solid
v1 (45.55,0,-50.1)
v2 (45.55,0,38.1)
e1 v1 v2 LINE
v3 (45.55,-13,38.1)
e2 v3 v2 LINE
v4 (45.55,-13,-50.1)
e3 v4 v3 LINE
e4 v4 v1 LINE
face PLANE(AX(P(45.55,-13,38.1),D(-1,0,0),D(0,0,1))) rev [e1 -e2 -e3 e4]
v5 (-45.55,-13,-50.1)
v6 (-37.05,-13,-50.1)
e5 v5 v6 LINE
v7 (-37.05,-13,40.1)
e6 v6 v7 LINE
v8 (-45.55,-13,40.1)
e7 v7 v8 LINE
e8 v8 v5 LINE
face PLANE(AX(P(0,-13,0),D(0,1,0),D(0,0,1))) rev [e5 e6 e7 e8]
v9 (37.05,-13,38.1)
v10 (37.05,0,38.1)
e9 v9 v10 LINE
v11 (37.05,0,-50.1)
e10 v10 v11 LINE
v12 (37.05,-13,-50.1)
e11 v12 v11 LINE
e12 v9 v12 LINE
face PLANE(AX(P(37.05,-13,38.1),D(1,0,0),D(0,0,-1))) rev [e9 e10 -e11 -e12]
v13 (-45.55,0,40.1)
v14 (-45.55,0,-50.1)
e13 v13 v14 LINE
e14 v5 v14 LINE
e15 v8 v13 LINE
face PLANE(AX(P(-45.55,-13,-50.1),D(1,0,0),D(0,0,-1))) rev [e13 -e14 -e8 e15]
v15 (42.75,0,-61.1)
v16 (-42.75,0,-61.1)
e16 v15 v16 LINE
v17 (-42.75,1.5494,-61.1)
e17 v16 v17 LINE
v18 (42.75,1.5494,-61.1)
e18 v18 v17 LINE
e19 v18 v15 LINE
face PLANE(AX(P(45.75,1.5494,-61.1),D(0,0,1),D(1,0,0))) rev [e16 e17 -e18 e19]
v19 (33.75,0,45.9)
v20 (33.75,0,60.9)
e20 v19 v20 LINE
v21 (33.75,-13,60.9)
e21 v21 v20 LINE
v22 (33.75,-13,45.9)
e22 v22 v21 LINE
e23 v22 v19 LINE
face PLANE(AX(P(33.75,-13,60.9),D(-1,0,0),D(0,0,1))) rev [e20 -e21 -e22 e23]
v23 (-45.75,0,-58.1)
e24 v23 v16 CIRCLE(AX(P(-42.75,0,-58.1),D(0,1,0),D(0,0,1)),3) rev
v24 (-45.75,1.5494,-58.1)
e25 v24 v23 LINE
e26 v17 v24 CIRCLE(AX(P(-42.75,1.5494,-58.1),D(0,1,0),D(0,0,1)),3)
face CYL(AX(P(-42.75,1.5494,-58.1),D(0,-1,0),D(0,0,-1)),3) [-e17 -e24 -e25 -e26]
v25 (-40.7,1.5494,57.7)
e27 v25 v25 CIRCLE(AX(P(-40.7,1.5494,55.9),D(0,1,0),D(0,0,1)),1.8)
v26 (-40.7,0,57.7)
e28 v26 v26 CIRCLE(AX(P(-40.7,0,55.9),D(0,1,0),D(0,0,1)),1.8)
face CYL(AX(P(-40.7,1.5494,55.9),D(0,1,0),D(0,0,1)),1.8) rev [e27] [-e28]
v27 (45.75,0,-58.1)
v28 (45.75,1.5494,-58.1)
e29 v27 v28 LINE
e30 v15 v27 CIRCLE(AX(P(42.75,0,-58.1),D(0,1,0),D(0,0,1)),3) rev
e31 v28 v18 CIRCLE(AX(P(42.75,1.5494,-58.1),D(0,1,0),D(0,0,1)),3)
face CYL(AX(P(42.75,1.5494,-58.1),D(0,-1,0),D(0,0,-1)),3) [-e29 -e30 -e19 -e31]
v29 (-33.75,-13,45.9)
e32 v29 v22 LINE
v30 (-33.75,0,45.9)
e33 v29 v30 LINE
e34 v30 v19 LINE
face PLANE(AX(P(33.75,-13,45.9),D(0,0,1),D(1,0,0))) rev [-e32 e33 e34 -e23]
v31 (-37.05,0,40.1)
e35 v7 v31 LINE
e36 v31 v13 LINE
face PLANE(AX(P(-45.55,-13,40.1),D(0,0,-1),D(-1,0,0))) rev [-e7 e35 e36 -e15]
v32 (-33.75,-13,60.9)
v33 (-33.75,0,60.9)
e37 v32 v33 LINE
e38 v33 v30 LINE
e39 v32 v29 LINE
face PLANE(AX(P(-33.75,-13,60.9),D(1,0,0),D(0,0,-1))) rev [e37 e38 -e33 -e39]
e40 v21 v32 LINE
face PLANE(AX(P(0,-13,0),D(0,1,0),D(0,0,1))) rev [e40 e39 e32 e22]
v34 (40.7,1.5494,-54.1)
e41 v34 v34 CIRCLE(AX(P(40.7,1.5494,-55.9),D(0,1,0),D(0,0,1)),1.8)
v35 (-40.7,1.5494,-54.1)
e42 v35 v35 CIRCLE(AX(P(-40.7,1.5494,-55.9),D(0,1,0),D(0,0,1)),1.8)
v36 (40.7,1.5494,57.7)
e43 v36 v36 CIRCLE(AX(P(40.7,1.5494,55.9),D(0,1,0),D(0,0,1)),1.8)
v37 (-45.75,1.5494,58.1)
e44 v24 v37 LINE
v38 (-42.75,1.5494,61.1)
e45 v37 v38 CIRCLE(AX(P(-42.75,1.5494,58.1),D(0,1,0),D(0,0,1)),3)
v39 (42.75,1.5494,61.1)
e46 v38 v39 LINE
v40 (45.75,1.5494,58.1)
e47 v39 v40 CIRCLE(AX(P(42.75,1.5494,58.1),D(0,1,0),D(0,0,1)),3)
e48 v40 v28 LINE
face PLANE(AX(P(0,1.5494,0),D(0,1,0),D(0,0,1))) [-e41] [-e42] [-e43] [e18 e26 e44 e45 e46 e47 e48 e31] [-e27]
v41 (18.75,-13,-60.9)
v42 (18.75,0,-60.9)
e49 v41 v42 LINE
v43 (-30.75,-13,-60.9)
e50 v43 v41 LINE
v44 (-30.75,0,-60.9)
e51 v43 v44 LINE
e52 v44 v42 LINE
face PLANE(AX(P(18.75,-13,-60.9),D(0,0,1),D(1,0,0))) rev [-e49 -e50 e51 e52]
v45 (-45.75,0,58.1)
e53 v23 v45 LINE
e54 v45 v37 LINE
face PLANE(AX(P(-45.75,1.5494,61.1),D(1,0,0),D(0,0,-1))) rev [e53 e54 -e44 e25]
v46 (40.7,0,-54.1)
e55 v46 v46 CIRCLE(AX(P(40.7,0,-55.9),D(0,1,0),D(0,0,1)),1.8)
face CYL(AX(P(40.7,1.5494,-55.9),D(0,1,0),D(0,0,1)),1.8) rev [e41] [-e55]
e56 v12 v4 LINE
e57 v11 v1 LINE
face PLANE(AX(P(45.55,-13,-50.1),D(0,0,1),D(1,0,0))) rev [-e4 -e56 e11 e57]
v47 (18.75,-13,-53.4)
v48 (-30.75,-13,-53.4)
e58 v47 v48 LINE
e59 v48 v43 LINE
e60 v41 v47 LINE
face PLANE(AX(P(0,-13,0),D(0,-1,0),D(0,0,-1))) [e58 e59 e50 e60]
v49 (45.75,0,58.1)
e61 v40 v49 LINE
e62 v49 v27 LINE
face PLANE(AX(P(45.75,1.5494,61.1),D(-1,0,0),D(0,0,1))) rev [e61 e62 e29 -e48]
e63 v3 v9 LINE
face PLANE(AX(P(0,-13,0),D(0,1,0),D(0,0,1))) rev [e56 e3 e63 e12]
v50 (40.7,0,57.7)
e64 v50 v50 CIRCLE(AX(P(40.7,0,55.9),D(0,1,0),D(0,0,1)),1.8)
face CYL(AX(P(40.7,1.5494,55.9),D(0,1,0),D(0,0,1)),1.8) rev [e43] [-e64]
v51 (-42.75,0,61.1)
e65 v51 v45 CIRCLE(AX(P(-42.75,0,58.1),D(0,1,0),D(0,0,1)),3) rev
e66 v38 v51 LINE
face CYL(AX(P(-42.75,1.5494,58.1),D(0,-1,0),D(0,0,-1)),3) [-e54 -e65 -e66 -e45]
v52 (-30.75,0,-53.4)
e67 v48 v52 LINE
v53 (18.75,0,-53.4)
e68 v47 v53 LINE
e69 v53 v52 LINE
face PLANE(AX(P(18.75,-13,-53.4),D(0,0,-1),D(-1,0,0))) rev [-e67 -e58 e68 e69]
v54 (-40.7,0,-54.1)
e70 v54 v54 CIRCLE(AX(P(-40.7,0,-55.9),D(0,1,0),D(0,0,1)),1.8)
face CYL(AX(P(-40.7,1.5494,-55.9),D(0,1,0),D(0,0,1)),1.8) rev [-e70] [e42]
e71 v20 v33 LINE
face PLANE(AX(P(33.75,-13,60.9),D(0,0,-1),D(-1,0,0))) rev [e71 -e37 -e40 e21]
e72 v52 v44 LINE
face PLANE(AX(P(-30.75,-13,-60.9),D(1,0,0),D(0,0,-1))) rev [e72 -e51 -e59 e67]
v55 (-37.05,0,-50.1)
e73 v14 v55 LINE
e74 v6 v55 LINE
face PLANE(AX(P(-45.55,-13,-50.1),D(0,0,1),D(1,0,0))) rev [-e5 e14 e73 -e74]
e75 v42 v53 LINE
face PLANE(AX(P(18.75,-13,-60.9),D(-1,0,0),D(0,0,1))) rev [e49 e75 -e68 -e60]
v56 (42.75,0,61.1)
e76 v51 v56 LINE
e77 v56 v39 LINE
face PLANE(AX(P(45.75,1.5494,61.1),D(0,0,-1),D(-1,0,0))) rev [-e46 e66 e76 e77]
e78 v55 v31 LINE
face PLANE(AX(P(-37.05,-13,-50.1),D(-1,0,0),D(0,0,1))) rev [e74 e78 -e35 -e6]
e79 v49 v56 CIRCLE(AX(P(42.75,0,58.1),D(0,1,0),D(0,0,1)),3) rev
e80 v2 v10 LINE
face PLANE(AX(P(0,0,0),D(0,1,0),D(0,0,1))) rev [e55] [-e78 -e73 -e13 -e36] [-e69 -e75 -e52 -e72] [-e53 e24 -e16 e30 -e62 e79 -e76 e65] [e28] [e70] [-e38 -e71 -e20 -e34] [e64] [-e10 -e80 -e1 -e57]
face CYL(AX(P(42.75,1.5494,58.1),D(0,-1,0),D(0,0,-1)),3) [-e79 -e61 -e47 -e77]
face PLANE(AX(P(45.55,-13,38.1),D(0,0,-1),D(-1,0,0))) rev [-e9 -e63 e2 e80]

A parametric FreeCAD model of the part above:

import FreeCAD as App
import Part
import Sketcher

V = App.Vector


def edges_at(feature, points):
    """Names of the edges that pass closest to the given points."""
    edges = feature.Shape.Edges
    near = lambda p: min(range(len(edges)), key=lambda i: edges[i].distToShape(Part.Vertex(*p))[0])
    return sorted({f"Edge{near(p) + 1}" for p in points})

doc = App.newDocument("Part")
body = doc.addObject("PartDesign::Body", "Body")

# Sketch on XZ plane
sketch1 = body.newObject("Sketcher::SketchObject", "Sketch")
sketch1.AttachmentSupport = (doc.getObject("XZ_Plane"), [""])
sketch1.MapMode = "FlatFace"
sketch1.addGeometry([
    Part.LineSegment(V(-46, -61, 0), V(-46, 61, 0)),
    Part.LineSegment(V(-46, 61, 0), V(46, 61, 0)),
    Part.LineSegment(V(46, 61, 0), V(46, -61, 0)),
    Part.LineSegment(V(46, -61, 0), V(-46, -61, 0)),
], False)
sketch1.addConstraint([
    Sketcher.Constraint("Coincident", 0, 2, 1, 1),
    Sketcher.Constraint("Coincident", 1, 2, 2, 1),
    Sketcher.Constraint("Coincident", 2, 2, 3, 1),
    Sketcher.Constraint("Coincident", 3, 2, 0, 1),
    Sketcher.Constraint("Vertical", 0),
    Sketcher.Constraint("Horizontal", 1),
    Sketcher.Constraint("Vertical", 2),
    Sketcher.Constraint("Horizontal", 3),
    Sketcher.Constraint("Symmetric", 0, 2, 2, 2, -1, 1),
    Sketcher.Constraint("DistanceX", 1, 1, 1, 2, 91.5),
    Sketcher.Constraint("DistanceY", 0, 1, 0, 2, 122.2),
])
pad1 = body.newObject("PartDesign::Pad", "Pad")
pad1.Profile = sketch1
pad1.Length = 1.5494
pad1.Reversed = True

# Sketch on XZ plane
sketch2 = body.newObject("Sketcher::SketchObject", "Sketch001")
sketch2.AttachmentSupport = (doc.getObject("XZ_Plane"), [""])
sketch2.MapMode = "FlatFace"
sketch2.AttachmentOffset = App.Placement(V(0, 0, -1.5494), App.Rotation())
sketch2.addGeometry([
    Part.Circle(V(-40.7, -55.9, 0), V(0, 0, 1), 1.8),
    Part.Circle(V(40.7, 55.9, 0), V(0, 0, 1), 1.8),
    Part.Circle(V(40.7, -55.9, 0), V(0, 0, 1), 1.8),
    Part.Circle(V(-40.7, 55.9, 0), V(0, 0, 1), 1.8),
], False)
sketch2.addConstraint([
    Sketcher.Constraint("Equal", 0, 1),
    Sketcher.Constraint("Equal", 1, 2),
    Sketcher.Constraint("Equal", 2, 3),
    Sketcher.Constraint("Symmetric", 0, 3, 1, 3, -1, 1),
    Sketcher.Constraint("Symmetric", 2, 3, 3, 3, -1, 1),
    Sketcher.Constraint("Symmetric", 0, 3, 2, 3, -2),
    Sketcher.Constraint("Diameter", 0, 3.6),
    Sketcher.Constraint("DistanceX", 0, 3, -1, 1, 40.7),
    Sketcher.Constraint("DistanceY", 0, 3, -1, 1, 55.9),
])
doc.recompute()
hole = body.newObject("PartDesign::Hole", "Hole")
hole.Profile = sketch2
hole.ThreadType = "None"
hole.Diameter = 3.6
hole.DepthType = "Dimension"
hole.Depth = 12
hole.DrillPoint = "Flat"
hole.Reversed = True
doc.recompute()

fillet = body.newObject("PartDesign::Fillet", "Fillet")
fillet.Base = (hole, edges_at(hole, [
    (-45.75, 0.775, -61.1),
    (45.75, 0.775, -61.1),
    (45.75, 0.775, 61.1),
    (-45.75, 0.775, 61.1),
]))
fillet.Radius = 3

# Sketch on XZ plane
sketch3 = body.newObject("Sketcher::SketchObject", "Sketch002")
sketch3.AttachmentSupport = (doc.getObject("XZ_Plane"), [""])
sketch3.MapMode = "FlatFace"
sketch3.addGeometry([
    Part.LineSegment(V(37, 38, 0), V(37, -50, 0)),  # 0
    Part.LineSegment(V(37, -50, 0), V(46, -50, 0)),  # 1
    Part.LineSegment(V(46, -50, 0), V(46, 38, 0)),  # 2
    Part.LineSegment(V(46, 38, 0), V(37, 38, 0)),  # 3
    Part.LineSegment(V(-31, -53, 0), V(-31, -61, 0)),  # 4
    Part.LineSegment(V(-31, -61, 0), V(19, -61, 0)),  # 5
    Part.LineSegment(V(19, -61, 0), V(19, -53, 0)),  # 6
    Part.LineSegment(V(19, -53, 0), V(-31, -53, 0)),  # 7
    Part.LineSegment(V(-46, 40, 0), V(-46, -50, 0)),  # 8
    Part.LineSegment(V(-46, -50, 0), V(-37, -50, 0)),  # 9
    Part.LineSegment(V(-37, -50, 0), V(-37, 40, 0)),  # 10
    Part.LineSegment(V(-37, 40, 0), V(-46, 40, 0)),  # 11
    Part.LineSegment(V(-34, 61, 0), V(-34, 46, 0)),  # 12
    Part.LineSegment(V(-34, 46, 0), V(34, 46, 0)),  # 13
    Part.LineSegment(V(34, 46, 0), V(34, 61, 0)),  # 14
    Part.LineSegment(V(34, 61, 0), V(-34, 61, 0)),  # 15
], False)
sketch3.addConstraint([
    Sketcher.Constraint("Coincident", 0, 2, 1, 1),
    Sketcher.Constraint("Coincident", 1, 2, 2, 1),
    Sketcher.Constraint("Coincident", 2, 2, 3, 1),
    Sketcher.Constraint("Coincident", 3, 2, 0, 1),
    Sketcher.Constraint("Coincident", 4, 2, 5, 1),
    Sketcher.Constraint("Coincident", 5, 2, 6, 1),
    Sketcher.Constraint("Coincident", 6, 2, 7, 1),
    Sketcher.Constraint("Coincident", 7, 2, 4, 1),
    Sketcher.Constraint("Coincident", 8, 2, 9, 1),
    Sketcher.Constraint("Coincident", 9, 2, 10, 1),
    Sketcher.Constraint("Coincident", 10, 2, 11, 1),
    Sketcher.Constraint("Coincident", 11, 2, 8, 1),
    Sketcher.Constraint("Coincident", 12, 2, 13, 1),
    Sketcher.Constraint("Coincident", 13, 2, 14, 1),
    Sketcher.Constraint("Coincident", 14, 2, 15, 1),
    Sketcher.Constraint("Coincident", 15, 2, 12, 1),
    Sketcher.Constraint("Vertical", 0),
    Sketcher.Constraint("Horizontal", 1),
    Sketcher.Constraint("Vertical", 2),
    Sketcher.Constraint("Horizontal", 3),
    Sketcher.Constraint("Vertical", 4),
    Sketcher.Constraint("Horizontal", 5),
    Sketcher.Constraint("Vertical", 6),
    Sketcher.Constraint("Horizontal", 7),
    Sketcher.Constraint("Vertical", 8),
    Sketcher.Constraint("Horizontal", 9),
    Sketcher.Constraint("Vertical", 10),
    Sketcher.Constraint("Horizontal", 11),
    Sketcher.Constraint("Vertical", 12),
    Sketcher.Constraint("Horizontal", 13),
    Sketcher.Constraint("Vertical", 14),
    Sketcher.Constraint("Horizontal", 15),
    Sketcher.Constraint("Symmetric", 1, 2, 8, 2, -2),
    Sketcher.Constraint("Equal", 3, 9),
    Sketcher.Constraint("DistanceY", 12, 2, 12, 1, 15.0),
    Sketcher.Constraint("DistanceX", 1, 1, 1, 2, 8.5),
    Sketcher.Constraint("DistanceX", 5, 1, 5, 2, 49.5),
    Sketcher.Constraint("DistanceX", 13, 1, 13, 2, 67.5),
    Sketcher.Constraint("DistanceY", 0, 2, 0, 1, 88.2),
    Sketcher.Constraint("DistanceY", 4, 2, 4, 1, 7.5),
    Sketcher.Constraint("DistanceY", 8, 2, 8, 1, 90.2),
    Sketcher.Constraint("DistanceY", 4, 2, 3, 2, 99.0),
    Sketcher.Constraint("DistanceY", 9, 2, 12, 2, 96.0),
    Sketcher.Constraint("DistanceY", 0, 2, -1, 1, 50.1),
    Sketcher.Constraint("DistanceX", 4, 2, 0, 2, 67.8),
    Sketcher.Constraint("DistanceX", 8, 2, 7, 2, 14.8),
    Sketcher.Constraint("DistanceX", 10, 2, 12, 2, 3.3),
])
pad2 = body.newObject("PartDesign::Pad", "Pad001")
pad2.Profile = sketch3
pad2.Length = 13

doc.recompute()
